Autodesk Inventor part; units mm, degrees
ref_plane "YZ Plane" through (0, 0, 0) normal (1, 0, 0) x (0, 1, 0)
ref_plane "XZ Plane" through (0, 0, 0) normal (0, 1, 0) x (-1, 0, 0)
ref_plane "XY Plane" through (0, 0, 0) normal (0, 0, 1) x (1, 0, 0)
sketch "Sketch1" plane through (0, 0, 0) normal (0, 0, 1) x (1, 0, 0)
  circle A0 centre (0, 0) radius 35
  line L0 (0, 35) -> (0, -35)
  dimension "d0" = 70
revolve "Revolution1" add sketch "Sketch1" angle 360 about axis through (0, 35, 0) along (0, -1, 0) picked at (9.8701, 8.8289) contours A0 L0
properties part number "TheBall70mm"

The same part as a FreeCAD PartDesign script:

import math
import FreeCAD as App
import Part
import Sketcher
from FreeCAD import Vector
Q = App.Units.Quantity

doc = App.newDocument("Part")
params = doc.addObject("Spreadsheet::Sheet", "Params")
for row, (alias, value) in enumerate([
    ("sketch1_radius", "35 mm"),
    ("revolution_angle", "360 deg"),
], start=1):
    params.set(f"A{row}", alias)
    params.set(f"B{row}", "=" + value)
    params.setAlias(f"B{row}", alias)

body = doc.addObject("PartDesign::Body", "Body")

# Sketch on XY plane
sketch1 = body.newObject("Sketcher::SketchObject", "Sketch")
sketch1.AttachmentSupport = (doc.getObject("XY_Plane"), [""])
sketch1.MapMode = "FlatFace"
sketch1.addGeometry([
    Part.ArcOfCircle(Part.Circle(Vector(0, 0, 0), Vector(0, 0, 1), 35), math.radians(-90), math.radians(90)),
    Part.LineSegment(Vector(0, 35, 0), Vector(0, -35, 0)),
], False)
sketch1.addConstraint([
    Sketcher.Constraint("Coincident", 0, 1, 1, 2),
    Sketcher.Constraint("Coincident", 1, 1, 0, 2),
    Sketcher.Constraint("Vertical", 1),
    Sketcher.Constraint("Coincident", 0, 3, -1, 1),
    Sketcher.Constraint("PointOnObject", 0, 1, -2),
    Sketcher.Constraint("Radius", 0, Q("35 mm")),
])
sketch1.setExpression("Constraints[5]", "Params.sketch1_radius")
revolution = body.newObject("PartDesign::Revolution", "Revolution")
revolution.Profile = sketch1
revolution.ReferenceAxis = (sketch1, ["V_Axis"])
revolution.setExpression("Angle", "Params.revolution_angle")

doc.recompute()
